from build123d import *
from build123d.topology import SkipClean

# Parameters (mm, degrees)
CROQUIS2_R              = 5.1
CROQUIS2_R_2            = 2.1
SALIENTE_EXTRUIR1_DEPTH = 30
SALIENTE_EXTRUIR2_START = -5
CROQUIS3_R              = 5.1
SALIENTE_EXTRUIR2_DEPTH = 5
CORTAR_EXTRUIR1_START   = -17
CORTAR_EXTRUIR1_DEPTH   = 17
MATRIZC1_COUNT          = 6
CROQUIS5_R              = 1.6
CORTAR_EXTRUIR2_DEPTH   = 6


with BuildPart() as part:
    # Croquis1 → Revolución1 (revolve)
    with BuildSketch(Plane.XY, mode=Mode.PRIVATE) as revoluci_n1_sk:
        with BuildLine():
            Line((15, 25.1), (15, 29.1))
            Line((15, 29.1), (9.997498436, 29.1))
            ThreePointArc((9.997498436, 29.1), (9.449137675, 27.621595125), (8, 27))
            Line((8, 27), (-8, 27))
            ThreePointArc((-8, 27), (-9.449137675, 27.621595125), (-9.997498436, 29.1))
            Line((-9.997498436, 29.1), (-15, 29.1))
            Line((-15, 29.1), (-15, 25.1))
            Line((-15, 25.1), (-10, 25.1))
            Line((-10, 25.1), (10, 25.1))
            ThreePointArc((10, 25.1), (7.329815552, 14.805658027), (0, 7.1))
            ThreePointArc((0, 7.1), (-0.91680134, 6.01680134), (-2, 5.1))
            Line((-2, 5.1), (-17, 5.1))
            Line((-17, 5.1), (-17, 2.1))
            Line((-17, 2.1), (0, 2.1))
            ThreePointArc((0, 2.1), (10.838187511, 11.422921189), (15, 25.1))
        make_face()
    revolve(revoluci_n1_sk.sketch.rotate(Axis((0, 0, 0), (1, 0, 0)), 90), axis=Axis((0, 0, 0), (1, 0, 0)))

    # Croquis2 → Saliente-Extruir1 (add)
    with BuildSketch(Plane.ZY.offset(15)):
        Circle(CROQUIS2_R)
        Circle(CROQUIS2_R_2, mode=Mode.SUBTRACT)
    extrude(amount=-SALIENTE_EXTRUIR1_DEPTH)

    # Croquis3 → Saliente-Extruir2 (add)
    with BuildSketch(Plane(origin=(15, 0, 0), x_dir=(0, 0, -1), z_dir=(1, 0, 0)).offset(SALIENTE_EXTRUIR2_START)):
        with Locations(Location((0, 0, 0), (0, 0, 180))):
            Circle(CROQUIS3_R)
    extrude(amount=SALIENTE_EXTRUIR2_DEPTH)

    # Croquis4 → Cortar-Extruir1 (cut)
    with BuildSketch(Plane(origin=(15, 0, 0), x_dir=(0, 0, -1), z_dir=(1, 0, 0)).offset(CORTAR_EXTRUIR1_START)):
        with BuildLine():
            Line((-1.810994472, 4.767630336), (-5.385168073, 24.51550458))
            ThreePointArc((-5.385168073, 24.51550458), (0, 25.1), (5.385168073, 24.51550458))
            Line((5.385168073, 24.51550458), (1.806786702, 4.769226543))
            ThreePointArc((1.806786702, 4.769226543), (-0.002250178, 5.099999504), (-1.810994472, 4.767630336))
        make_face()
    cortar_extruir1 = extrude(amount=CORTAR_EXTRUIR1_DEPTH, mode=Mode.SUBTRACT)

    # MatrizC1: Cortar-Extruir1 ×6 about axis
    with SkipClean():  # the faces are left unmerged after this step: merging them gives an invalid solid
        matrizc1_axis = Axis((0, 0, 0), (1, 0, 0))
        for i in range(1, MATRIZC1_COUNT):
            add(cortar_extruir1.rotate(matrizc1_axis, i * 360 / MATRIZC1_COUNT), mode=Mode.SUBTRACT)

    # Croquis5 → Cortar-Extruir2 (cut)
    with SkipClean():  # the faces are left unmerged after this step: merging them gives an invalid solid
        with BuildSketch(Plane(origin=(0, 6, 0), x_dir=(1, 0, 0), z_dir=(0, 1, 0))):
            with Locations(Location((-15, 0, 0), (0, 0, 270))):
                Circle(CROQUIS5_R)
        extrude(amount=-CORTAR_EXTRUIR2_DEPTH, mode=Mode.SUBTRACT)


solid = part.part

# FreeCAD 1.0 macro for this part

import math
import FreeCAD as App
import Part
import Sketcher
Q = App.Units.Quantity

doc = App.newDocument("Part")
body = doc.addObject("PartDesign::Body", "Body")

sketch1 = body.newObject("Sketcher::SketchObject", "Sketch")
sketch1.AttachmentSupport = (doc.getObject("XY_Plane"), [""])
sketch1.MapMode = "FlatFace"
sketch1.addGeometry([
    Part.LineSegment(App.Vector(15, 25.1, 0), App.Vector(15, 29.1, 0)),
    Part.LineSegment(App.Vector(15, 29.1, 0), App.Vector(10, 29.1, 0)),
    Part.ArcOfCircle(Part.Circle(App.Vector(8, 29, 0), App.Vector(0, 0, 1), 2), math.radians(-90), math.radians(3)),
    Part.LineSegment(App.Vector(8, 27, 0), App.Vector(-8, 27, 0)),
    Part.ArcOfCircle(Part.Circle(App.Vector(-8, 29, 0), App.Vector(0, 0, 1), 2), math.radians(177), math.radians(270)),
    Part.LineSegment(App.Vector(-10, 29.1, 0), App.Vector(-15, 29.1, 0)),
    Part.LineSegment(App.Vector(-15, 29.1, 0), App.Vector(-15, 25.1, 0)),
    Part.LineSegment(App.Vector(-15, 25.1, 0), App.Vector(10, 25.1, 0)),
    Part.ArcOfCircle(Part.Circle(App.Vector(-11.2, 25.1, 0), App.Vector(0, 0, 1), 21.2), math.radians(-58), math.radians(0)),
    Part.ArcOfCircle(Part.Circle(App.Vector(-7, 12.1, 0), App.Vector(0, 0, 1), 8.6), math.radians(-54.51), math.radians(-35.49)),
    Part.LineSegment(App.Vector(-2, 5.1, 0), App.Vector(-17, 5.1, 0)),
    Part.LineSegment(App.Vector(-17, 5.1, 0), App.Vector(-17, 2.1, 0)),
    Part.LineSegment(App.Vector(-17, 2.1, 0), App.Vector(0, 2.1, 0)),
    Part.ArcOfCircle(Part.Circle(App.Vector(-10.6, 25.4, 0), App.Vector(0, 0, 1), 25.6), math.radians(-65), math.radians(-1)),
], False)
sketch1.addConstraint([
    Sketcher.Constraint("Coincident", 0, 2, 1, 1),
    Sketcher.Constraint("Coincident", 1, 2, 2, 2),
    Sketcher.Constraint("Tangent", 2, 1, 3, 1),
    Sketcher.Constraint("Tangent", 3, 2, 4, 2),
    Sketcher.Constraint("Coincident", 4, 1, 5, 1),
    Sketcher.Constraint("Coincident", 5, 2, 6, 1),
    Sketcher.Constraint("Coincident", 6, 2, 7, 1),
    Sketcher.Constraint("Coincident", 7, 2, 8, 2),
    Sketcher.Constraint("Coincident", 8, 1, 9, 2),
    Sketcher.Constraint("Coincident", 9, 1, 10, 1),
    Sketcher.Constraint("Coincident", 10, 2, 11, 1),
    Sketcher.Constraint("Coincident", 11, 2, 12, 1),
    Sketcher.Constraint("Coincident", 12, 2, 13, 1),
    Sketcher.Constraint("Coincident", 13, 2, 0, 1),
    Sketcher.Constraint("Vertical", 0),
    Sketcher.Constraint("Horizontal", 1),
    Sketcher.Constraint("Horizontal", 3),
    Sketcher.Constraint("Horizontal", 5),
    Sketcher.Constraint("Vertical", 6),
    Sketcher.Constraint("Horizontal", 7),
    Sketcher.Constraint("Horizontal", 10),
    Sketcher.Constraint("Vertical", 11),
    Sketcher.Constraint("Horizontal", 12),
    Sketcher.Constraint("Equal", 2, 4),
    Sketcher.Constraint("Symmetric", 1, 2, 4, 1, -2),
    Sketcher.Constraint("Symmetric", 6, 2, 13, 2, -2),
    Sketcher.Constraint("PointOnObject", 8, 1, -2),
    Sketcher.Constraint("PointOnObject", 12, 2, -2),
    Sketcher.Constraint("Radius", 2, Q("2 mm")),
    Sketcher.Constraint("DistanceX", 3, 2, 3, 1, Q("16 mm")),
    Sketcher.Constraint("DistanceX", 7, 1, 7, 2, Q("25 mm")),
    Sketcher.Constraint("DistanceX", 10, 2, 10, 1, Q("15 mm")),
    Sketcher.Constraint("DistanceX", 12, 1, 12, 2, Q("17 mm")),
    Sketcher.Constraint("DistanceY", 0, 1, 0, 2, Q("4 mm")),
    Sketcher.Constraint("DistanceY", 11, 2, 11, 1, Q("3 mm")),
    Sketcher.Constraint("DistanceY", -1, 1, 2, 3, Q("29 mm")),
    Sketcher.Constraint("DistanceX", -1, 1, 0, 2, Q("15 mm")),
    Sketcher.Constraint("DistanceY", 8, 1, 7, 2, Q("18 mm")),
    Sketcher.Constraint("DistanceY", 9, 1, 8, 1, Q("2 mm")),
    Sketcher.Constraint("DistanceY", -1, 1, 0, 2, Q("29.1 mm")),
    Sketcher.Constraint("Radius", 8, Q("21.218445 mm")),
    Sketcher.Constraint("Radius", 9, Q("8.557847 mm")),
    Sketcher.Constraint("Radius", 13, Q("25.641685 mm")),
])
revolution = body.newObject("PartDesign::Revolution", "Revolution")
revolution.Profile = sketch1
revolution.ReferenceAxis = (sketch1, ["H_Axis"])
revolution.Angle = 360

sketch2 = body.newObject("Sketcher::SketchObject", "Sketch001")
sketch2.AttachmentSupport = (doc.getObject("YZ_Plane"), [""])
sketch2.MapMode = "FlatFace"
sketch2.AttachmentOffset = App.Placement(App.Vector(0, 0, -15), App.Rotation())
sketch2.addGeometry([
    Part.Circle(App.Vector(0, 0, 0), App.Vector(0, 0, 1), 5.1),
    Part.Circle(App.Vector(0, 0, 0), App.Vector(0, 0, 1), 2.1),
], False)
sketch2.addConstraint([
    Sketcher.Constraint("Coincident", 0, 3, -1, 1),
    Sketcher.Constraint("Coincident", 1, 3, -1, 1),
    Sketcher.Constraint("Diameter", 0, Q("10.2 mm")),
    Sketcher.Constraint("Diameter", 1, Q("4.2 mm")),
])
pad1 = body.newObject("PartDesign::Pad", "Pad")
pad1.Profile = sketch2
pad1.Length = 30

sketch3 = body.newObject("Sketcher::SketchObject", "Sketch002")
sketch3.AttachmentSupport = (doc.getObject("YZ_Plane"), [""])
sketch3.MapMode = "FlatFace"
sketch3.AttachmentOffset = App.Placement(App.Vector(0, 0, 10), App.Rotation())
sketch3.addGeometry(Part.Circle(App.Vector(0, 0, 0), App.Vector(0, 0, 1), 5), False)
sketch3.addConstraint([
    Sketcher.Constraint("Coincident", 0, 3, -1, 1),
    Sketcher.Constraint("Diameter", 0, Q("10.2 mm")),
])
pad2 = body.newObject("PartDesign::Pad", "Pad001")
pad2.Profile = sketch3
pad2.Length = 5

sketch4 = body.newObject("Sketcher::SketchObject", "Sketch003")
sketch4.AttachmentSupport = (doc.getObject("YZ_Plane"), [""])
sketch4.MapMode = "FlatFace"
sketch4.AttachmentOffset = App.Placement(App.Vector(0, 0, -2), App.Rotation())
sketch4.addGeometry([
    Part.LineSegment(App.Vector(24.5, 5.4, 0), App.Vector(4.8, 1.8, 0)),
    Part.ArcOfCircle(Part.Circle(App.Vector(0, 0, 0), App.Vector(0, 0, 1), 5.1), math.radians(-21), math.radians(21)),
    Part.LineSegment(App.Vector(4.8, -1.8, 0), App.Vector(24.5, -5.4, 0)),
    Part.ArcOfCircle(Part.Circle(App.Vector(0, 0, 0), App.Vector(0, 0, 1), 25.1), math.radians(-12), math.radians(12)),
], False)
sketch4.addConstraint([
    Sketcher.Constraint("Coincident", 0, 2, 1, 2),
    Sketcher.Constraint("Coincident", 1, 1, 2, 1),
    Sketcher.Constraint("Coincident", 2, 2, 3, 1),
    Sketcher.Constraint("Coincident", 3, 2, 0, 1),
    Sketcher.Constraint("Coincident", 1, 3, -1, 1),
    Sketcher.Constraint("Coincident", 3, 3, -1, 1),
    Sketcher.Constraint("Vertical", 2, 2, 3, 2),
    Sketcher.Constraint("Radius", 1, Q("5.1 mm")),
    Sketcher.Constraint("Radius", 3, Q("25.1 mm")),
    Sketcher.Constraint("DistanceX", -1, 1, 0, 2, Q("4.76763 mm")),
    Sketcher.Constraint("DistanceY", 2, 2, -1, 1, Q("5.385168 mm")),
    Sketcher.Constraint("DistanceY", 1, 1, 0, 2, Q("3.617781 mm")),
])
pocket1 = body.newObject("PartDesign::Pocket", "Pocket")
pocket1.Profile = sketch4
pocket1.Length = 17
pocket1.Reversed = True
doc.recompute()

polarpattern = body.newObject("PartDesign::PolarPattern", "PolarPattern")
polarpattern.Originals = [pocket1]
polarpattern.Axis = (doc.getObject("X_Axis"), [""])
polarpattern.Angle = 360
polarpattern.Occurrences = 6
body.Tip = polarpattern

sketch5 = body.newObject("Sketcher::SketchObject", "Sketch004")
sketch5.AttachmentSupport = (doc.getObject("XZ_Plane"), [""])
sketch5.MapMode = "FlatFace"
sketch5.AttachmentOffset = App.Placement(App.Vector(0, 0, -6), App.Rotation())
sketch5.addGeometry(Part.Circle(App.Vector(-15, 0, 0), App.Vector(0, 0, 1), 1.6), False)
sketch5.addConstraint([
    Sketcher.Constraint("PointOnObject", 0, 3, -1),
    Sketcher.Constraint("Diameter", 0, Q("3.2 mm")),
    Sketcher.Constraint("DistanceX", 0, 3, -1, 1, Q("15 mm")),
])
pocket2 = body.newObject("PartDesign::Pocket", "Pocket001")
pocket2.Profile = sketch5
pocket2.Length = 6
pocket2.Reversed = True

doc.recompute()
